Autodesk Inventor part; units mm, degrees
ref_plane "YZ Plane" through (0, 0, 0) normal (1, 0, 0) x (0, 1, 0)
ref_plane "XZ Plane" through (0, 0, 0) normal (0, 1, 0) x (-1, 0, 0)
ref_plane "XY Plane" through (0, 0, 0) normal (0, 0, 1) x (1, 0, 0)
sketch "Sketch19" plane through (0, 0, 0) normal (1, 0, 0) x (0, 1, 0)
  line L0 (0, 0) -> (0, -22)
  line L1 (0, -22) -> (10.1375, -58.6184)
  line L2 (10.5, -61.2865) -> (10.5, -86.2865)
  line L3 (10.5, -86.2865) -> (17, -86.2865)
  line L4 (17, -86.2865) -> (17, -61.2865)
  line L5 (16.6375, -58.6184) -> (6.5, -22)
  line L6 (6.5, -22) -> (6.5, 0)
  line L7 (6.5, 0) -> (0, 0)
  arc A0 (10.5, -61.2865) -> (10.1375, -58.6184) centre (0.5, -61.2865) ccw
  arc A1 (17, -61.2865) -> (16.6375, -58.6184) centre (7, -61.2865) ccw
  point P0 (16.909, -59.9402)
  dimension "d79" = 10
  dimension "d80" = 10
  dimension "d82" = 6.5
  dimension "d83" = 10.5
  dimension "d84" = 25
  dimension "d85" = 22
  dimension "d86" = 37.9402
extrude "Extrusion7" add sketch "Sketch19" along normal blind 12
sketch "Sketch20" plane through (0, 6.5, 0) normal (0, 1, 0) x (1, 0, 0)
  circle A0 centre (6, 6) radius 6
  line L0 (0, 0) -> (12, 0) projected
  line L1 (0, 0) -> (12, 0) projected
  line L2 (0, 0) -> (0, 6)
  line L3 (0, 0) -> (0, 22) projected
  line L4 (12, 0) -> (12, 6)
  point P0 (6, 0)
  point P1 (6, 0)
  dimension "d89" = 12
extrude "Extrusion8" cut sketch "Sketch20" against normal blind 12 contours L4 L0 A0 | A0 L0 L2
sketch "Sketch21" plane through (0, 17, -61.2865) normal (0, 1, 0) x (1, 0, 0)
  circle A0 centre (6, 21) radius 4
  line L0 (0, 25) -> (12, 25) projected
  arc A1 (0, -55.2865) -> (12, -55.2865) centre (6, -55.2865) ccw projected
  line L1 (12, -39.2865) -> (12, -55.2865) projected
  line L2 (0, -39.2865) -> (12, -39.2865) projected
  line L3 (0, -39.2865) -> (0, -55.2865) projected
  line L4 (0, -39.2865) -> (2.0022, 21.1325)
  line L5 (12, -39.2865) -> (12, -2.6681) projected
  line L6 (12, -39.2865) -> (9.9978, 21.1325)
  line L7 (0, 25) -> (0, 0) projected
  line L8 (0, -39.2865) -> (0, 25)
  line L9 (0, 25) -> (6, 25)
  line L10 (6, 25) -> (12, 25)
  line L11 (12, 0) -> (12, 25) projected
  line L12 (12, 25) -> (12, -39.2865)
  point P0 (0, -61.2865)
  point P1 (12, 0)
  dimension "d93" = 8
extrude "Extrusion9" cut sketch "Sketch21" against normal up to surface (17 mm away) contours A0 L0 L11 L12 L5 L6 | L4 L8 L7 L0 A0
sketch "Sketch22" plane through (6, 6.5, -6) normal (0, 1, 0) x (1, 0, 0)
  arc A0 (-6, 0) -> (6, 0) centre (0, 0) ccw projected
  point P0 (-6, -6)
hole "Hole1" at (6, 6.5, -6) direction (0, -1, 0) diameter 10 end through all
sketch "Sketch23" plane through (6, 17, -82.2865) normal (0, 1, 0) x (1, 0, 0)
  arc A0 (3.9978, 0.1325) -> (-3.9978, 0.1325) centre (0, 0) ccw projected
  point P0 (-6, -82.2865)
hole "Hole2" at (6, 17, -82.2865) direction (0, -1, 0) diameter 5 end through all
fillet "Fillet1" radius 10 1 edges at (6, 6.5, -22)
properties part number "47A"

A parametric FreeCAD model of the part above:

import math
import FreeCAD as App
import Part
import Sketcher

V = App.Vector


def edges_at(feature, points):
    """Names of the edges that pass closest to the given points."""
    edges = feature.Shape.Edges
    near = lambda p: min(range(len(edges)), key=lambda i: edges[i].distToShape(Part.Vertex(*p))[0])
    return sorted({f"Edge{near(p) + 1}" for p in points})

doc = App.newDocument("Part")
body = doc.addObject("PartDesign::Body", "Body")

sketch1 = doc.addObject("Sketcher::SketchObject", "Sketch")
body.addObject(sketch1)
sketch1.AttachmentSupport = (doc.YZ_Plane, [""])
sketch1.MapMode = "FlatFace"
sketch1.addGeometry(Part.LineSegment(V(6.5, 0, 0), V(0, 0, 0)), False)
sketch1.addGeometry(Part.LineSegment(V(0, 0, 0), V(0, -22, 0)), False)
sketch1.addGeometry(Part.LineSegment(V(0, -22, 0), V(10.1, -58.6, 0)), False)
sketch1.addGeometry(Part.ArcOfCircle(Part.Circle(V(0.5, -61.3, 0), V(0, 0, 1), 10), math.radians(0), math.radians(15.47)), False)
sketch1.addGeometry(Part.LineSegment(V(10.5, -61.3, 0), V(10.5, -86.3, 0)), False)
sketch1.addGeometry(Part.LineSegment(V(10.5, -86.3, 0), V(17, -86.3, 0)), False)
sketch1.addGeometry(Part.LineSegment(V(17, -86.3, 0), V(17, -61.3, 0)), False)
sketch1.addGeometry(Part.ArcOfCircle(Part.Circle(V(7, -61.3, 0), V(0, 0, 1), 10), math.radians(0), math.radians(15.47)), False)
sketch1.addGeometry(Part.LineSegment(V(16.6, -58.6, 0), V(6.5, -22, 0)), False)
sketch1.addGeometry(Part.LineSegment(V(6.5, -22, 0), V(6.5, 0, 0)), False)
sketch1.addConstraint(Sketcher.Constraint("Coincident", 0, 2, 1, 1))
sketch1.addConstraint(Sketcher.Constraint("Coincident", 1, 2, 2, 1))
sketch1.addConstraint(Sketcher.Constraint("Tangent", 2, 2, 3, 2))
sketch1.addConstraint(Sketcher.Constraint("Tangent", 3, 1, 4, 1))
sketch1.addConstraint(Sketcher.Constraint("Coincident", 4, 2, 5, 1))
sketch1.addConstraint(Sketcher.Constraint("Coincident", 5, 2, 6, 1))
sketch1.addConstraint(Sketcher.Constraint("Tangent", 6, 2, 7, 1))
sketch1.addConstraint(Sketcher.Constraint("Tangent", 7, 2, 8, 1))
sketch1.addConstraint(Sketcher.Constraint("Coincident", 8, 2, 9, 1))
sketch1.addConstraint(Sketcher.Constraint("Coincident", 9, 2, 0, 1))
sketch1.addConstraint(Sketcher.Constraint("Horizontal", 0))
sketch1.addConstraint(Sketcher.Constraint("Vertical", 1))
sketch1.addConstraint(Sketcher.Constraint("Vertical", 4))
sketch1.addConstraint(Sketcher.Constraint("Horizontal", 5))
sketch1.addConstraint(Sketcher.Constraint("Vertical", 6))
sketch1.addConstraint(Sketcher.Constraint("Vertical", 9))
sketch1.addConstraint(Sketcher.Constraint("Coincident", 0, 2, -1, 1))
sketch1.addConstraint(Sketcher.Constraint("Equal", 3, 7))
sketch1.addConstraint(Sketcher.Constraint("Parallel", 2, 8))
sketch1.addConstraint(Sketcher.Constraint("Horizontal", 3, 3, 7, 3))
sketch1.addConstraint(Sketcher.Constraint("Horizontal", 1, 2, 8, 2))
sketch1.addConstraint(Sketcher.Constraint("Radius", 3, 10.0))
sketch1.addConstraint(Sketcher.Constraint("DistanceY", 1, 2, 1, 1, 22.0))
sketch1.addConstraint(Sketcher.Constraint("DistanceY", 4, 2, 4, 1, 25.0))
sketch1.addConstraint(Sketcher.Constraint("DistanceX", 0, 2, 0, 1, 6.5))
sketch1.addConstraint(Sketcher.Constraint("DistanceX", -1, 1, 3, 1, 10.5))
sketch1.addConstraint(Sketcher.Constraint("DistanceY", 7, 3, 2, 2, 2.668))
pad1 = doc.addObject("PartDesign::Pad", "Pad")
body.addObject(pad1)
pad1.Profile = sketch1
pad1.Length = 12

sketch2 = doc.addObject("Sketcher::SketchObject", "Sketch001")
body.addObject(sketch2)
sketch2.AttachmentSupport = (doc.XZ_Plane, [""])
sketch2.MapMode = "FlatFace"
sketch2.AttachmentOffset = App.Placement(V(0, 0, -6.5), App.Rotation())
sketch2.addGeometry(Part.LineSegment(V(12, 0, 0), V(12, -6, 0)), False)
sketch2.addGeometry(Part.ArcOfCircle(Part.Circle(V(6, -6, 0), V(0, 0, 1), 6), math.radians(0), math.radians(90)), False)
sketch2.addGeometry(Part.LineSegment(V(6, 0, 0), V(12, 0, 0)), False)
sketch2.addGeometry(Part.ArcOfCircle(Part.Circle(V(6, -6, 0), V(0, 0, 1), 6), math.radians(90), math.radians(180)), False)
sketch2.addGeometry(Part.LineSegment(V(0, -6, 0), V(0, 0, 0)), False)
sketch2.addGeometry(Part.LineSegment(V(0, 0, 0), V(6, 0, 0)), False)
sketch2.addConstraint(Sketcher.Constraint("Tangent", 0, 2, 1, 1))
sketch2.addConstraint(Sketcher.Constraint("Tangent", 1, 2, 2, 1))
sketch2.addConstraint(Sketcher.Constraint("Coincident", 2, 2, 0, 1))
sketch2.addConstraint(Sketcher.Constraint("Tangent", 3, 2, 4, 1))
sketch2.addConstraint(Sketcher.Constraint("Coincident", 4, 2, 5, 1))
sketch2.addConstraint(Sketcher.Constraint("Tangent", 5, 2, 3, 1))
sketch2.addConstraint(Sketcher.Constraint("Vertical", 0))
sketch2.addConstraint(Sketcher.Constraint("Horizontal", 2))
sketch2.addConstraint(Sketcher.Constraint("Vertical", 4))
sketch2.addConstraint(Sketcher.Constraint("Horizontal", 5))
sketch2.addConstraint(Sketcher.Constraint("Coincident", 4, 2, -1, 1))
sketch2.addConstraint(Sketcher.Constraint("Coincident", 3, 3, 1, 3))
sketch2.addConstraint(Sketcher.Constraint("Equal", 1, 3))
sketch2.addConstraint(Sketcher.Constraint("Radius", 1, 6.0))
pocket1 = doc.addObject("PartDesign::Pocket", "Pocket")
body.addObject(pocket1)
pocket1.Profile = sketch2
pocket1.Length = 12
pocket1.Reversed = True

sketch3 = doc.addObject("Sketcher::SketchObject", "Sketch002")
body.addObject(sketch3)
sketch3.AttachmentSupport = (doc.XZ_Plane, [""])
sketch3.MapMode = "FlatFace"
sketch3.AttachmentOffset = App.Placement(V(0, 0, -17), App.Rotation())
sketch3.addGeometry(Part.ArcOfCircle(Part.Circle(V(6, -82.3, 0), V(0, 0, 1), 4), math.radians(-90), math.radians(-2)), False)
sketch3.addGeometry(Part.LineSegment(V(10, -82.4, 0), V(12, -22, 0)), False)
sketch3.addGeometry(Part.LineSegment(V(12, -22, 0), V(12, -86.3, 0)), False)
sketch3.addGeometry(Part.LineSegment(V(12, -86.3, 0), V(6, -86.3, 0)), False)
sketch3.addGeometry(Part.LineSegment(V(0, -22, 0), V(2, -82.4, 0)), False)
sketch3.addGeometry(Part.ArcOfCircle(Part.Circle(V(6, -82.3, 0), V(0, 0, 1), 4), math.radians(-178), math.radians(-90)), False)
sketch3.addGeometry(Part.LineSegment(V(6, -86.3, 0), V(0, -86.3, 0)), False)
sketch3.addGeometry(Part.LineSegment(V(0, -86.3, 0), V(0, -22, 0)), False)
sketch3.addConstraint(Sketcher.Constraint("Tangent", 0, 2, 1, 1))
sketch3.addConstraint(Sketcher.Constraint("Coincident", 1, 2, 2, 1))
sketch3.addConstraint(Sketcher.Constraint("Coincident", 2, 2, 3, 1))
sketch3.addConstraint(Sketcher.Constraint("Tangent", 3, 2, 0, 1))
sketch3.addConstraint(Sketcher.Constraint("Tangent", 4, 2, 5, 1))
sketch3.addConstraint(Sketcher.Constraint("Tangent", 5, 2, 6, 1))
sketch3.addConstraint(Sketcher.Constraint("Coincident", 6, 2, 7, 1))
sketch3.addConstraint(Sketcher.Constraint("Coincident", 7, 2, 4, 1))
sketch3.addConstraint(Sketcher.Constraint("Vertical", 2))
sketch3.addConstraint(Sketcher.Constraint("Horizontal", 3))
sketch3.addConstraint(Sketcher.Constraint("Horizontal", 6))
sketch3.addConstraint(Sketcher.Constraint("Vertical", 7))
sketch3.addConstraint(Sketcher.Constraint("Coincident", 5, 3, 0, 3))
sketch3.addConstraint(Sketcher.Constraint("Equal", 0, 5))
sketch3.addConstraint(Sketcher.Constraint("PointOnObject", 6, 2, -2))
sketch3.addConstraint(Sketcher.Constraint("Horizontal", 0, 2, 4, 2))
sketch3.addConstraint(Sketcher.Constraint("Horizontal", 1, 2, 7, 2))
sketch3.addConstraint(Sketcher.Constraint("Radius", 0, 4.0))
sketch3.addConstraint(Sketcher.Constraint("DistanceX", 3, 2, 3, 1, 6.0))
sketch3.addConstraint(Sketcher.Constraint("DistanceY", 1, 2, -1, 1, 22.0))
sketch3.addConstraint(Sketcher.Constraint("DistanceY", 2, 2, 2, 1, 64.2865))
pocket2 = doc.addObject("PartDesign::Pocket", "Pocket001")
body.addObject(pocket2)
pocket2.Profile = sketch3
pocket2.Length = 17
pocket2.Reversed = True

sketch4 = doc.addObject("Sketcher::SketchObject", "Sketch003")
body.addObject(sketch4)
sketch4.AttachmentSupport = (doc.XZ_Plane, [""])
sketch4.MapMode = "FlatFace"
sketch4.AttachmentOffset = App.Placement(V(0, 0, -6.5), App.Rotation())
sketch4.addGeometry(Part.Circle(V(6, -6, 0), V(0, 0, 1), 5), False)
sketch4.addConstraint(Sketcher.Constraint("Diameter", 0, 10.0))
sketch4.addConstraint(Sketcher.Constraint("DistanceX", -1, 1, 0, 3, 6.0))
sketch4.addConstraint(Sketcher.Constraint("DistanceY", 0, 3, -1, 1, 6.0))
doc.recompute()
hole = doc.addObject("PartDesign::Hole", "Hole")
body.addObject(hole)
hole.Profile = sketch4
hole.ThreadType = "None"
hole.Diameter = 10
hole.DepthType = "ThroughAll"
hole.Reversed = True

sketch5 = doc.addObject("Sketcher::SketchObject", "Sketch004")
body.addObject(sketch5)
sketch5.AttachmentSupport = (doc.XZ_Plane, [""])
sketch5.MapMode = "FlatFace"
sketch5.AttachmentOffset = App.Placement(V(0, 0, -17), App.Rotation())
sketch5.addGeometry(Part.Circle(V(6, -82.3, 0), V(0, 0, 1), 2.5), False)
sketch5.addConstraint(Sketcher.Constraint("Diameter", 0, 5.0))
sketch5.addConstraint(Sketcher.Constraint("DistanceX", -1, 1, 0, 3, 6.0))
sketch5.addConstraint(Sketcher.Constraint("DistanceY", 0, 3, -1, 1, 82.2865))
doc.recompute()
hole2 = doc.addObject("PartDesign::Hole", "Hole001")
body.addObject(hole2)
hole2.Profile = sketch5
hole2.ThreadType = "None"
hole2.Diameter = 5
hole2.DepthType = "ThroughAll"
hole2.Reversed = True
doc.recompute()

fillet = doc.addObject("PartDesign::Fillet", "Fillet")
body.addObject(fillet)
fillet.Base = (hole2, edges_at(hole2, [(6, 6.5, -22)]))
fillet.Radius = 10

doc.recompute()
